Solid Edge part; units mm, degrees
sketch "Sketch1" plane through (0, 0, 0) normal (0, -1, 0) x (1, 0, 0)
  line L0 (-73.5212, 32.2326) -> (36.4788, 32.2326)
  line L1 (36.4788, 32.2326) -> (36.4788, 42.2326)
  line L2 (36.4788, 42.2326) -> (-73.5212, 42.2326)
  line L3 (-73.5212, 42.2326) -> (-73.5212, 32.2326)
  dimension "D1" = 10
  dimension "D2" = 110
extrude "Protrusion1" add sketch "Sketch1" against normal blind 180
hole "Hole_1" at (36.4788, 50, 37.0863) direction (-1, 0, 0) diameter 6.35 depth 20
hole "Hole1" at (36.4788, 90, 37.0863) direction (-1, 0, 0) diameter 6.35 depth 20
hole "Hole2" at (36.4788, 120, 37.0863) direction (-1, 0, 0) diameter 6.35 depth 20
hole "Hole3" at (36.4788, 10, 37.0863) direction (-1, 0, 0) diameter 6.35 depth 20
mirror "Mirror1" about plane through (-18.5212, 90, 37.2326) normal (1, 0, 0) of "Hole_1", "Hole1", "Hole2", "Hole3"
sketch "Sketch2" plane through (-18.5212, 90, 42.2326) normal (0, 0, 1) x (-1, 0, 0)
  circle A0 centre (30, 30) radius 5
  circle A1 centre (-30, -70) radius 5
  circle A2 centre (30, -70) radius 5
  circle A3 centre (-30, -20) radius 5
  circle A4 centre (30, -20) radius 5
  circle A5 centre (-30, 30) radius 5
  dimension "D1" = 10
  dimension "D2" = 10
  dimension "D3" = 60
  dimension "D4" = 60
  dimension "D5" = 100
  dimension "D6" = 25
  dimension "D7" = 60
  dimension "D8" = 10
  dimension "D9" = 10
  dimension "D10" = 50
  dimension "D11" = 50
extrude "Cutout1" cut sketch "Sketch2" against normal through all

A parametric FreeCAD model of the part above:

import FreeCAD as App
import Part
import Sketcher
from FreeCAD import Vector
Q = App.Units.Quantity


def add_polygon(sketch, points):
    """Adds a closed chain of lines whose ends are joined by coincident constraints."""
    first, n = sketch.GeometryCount, len(points)
    for a, b in zip(points, points[1:] + points[:1]):
        sketch.addGeometry(Part.LineSegment(App.Vector(*a, 0), App.Vector(*b, 0)), False)
    for i in range(n):
        sketch.addConstraint(Sketcher.Constraint("Coincident", first + i, 2, first + (i + 1) % n, 1))

doc = App.newDocument("Part")
body = doc.addObject("PartDesign::Body", "Body")

# Sketch on XZ plane
sketch1 = body.newObject("Sketcher::SketchObject", "Sketch")
sketch1.AttachmentSupport = (doc.getObject("XZ_Plane"), [""])
sketch1.MapMode = "FlatFace"
add_polygon(sketch1, [(-73.5212, 42.2326), (-73.5212, 32.2326), (36.4788, 32.2326), (36.4788, 42.2326)])  # lines 0-3
sketch1.addConstraint([
    Sketcher.Constraint("Vertical", 0),
    Sketcher.Constraint("Horizontal", 1),
    Sketcher.Constraint("Vertical", 2),
    Sketcher.Constraint("Horizontal", 3),
    Sketcher.Constraint("DistanceX", 1, 1, 1, 2, Q("110 mm")),
    Sketcher.Constraint("DistanceY", 0, 2, 0, 1, Q("10 mm")),
    Sketcher.Constraint("DistanceX", 0, 2, -1, 1, Q("73.5212 mm")),
    Sketcher.Constraint("DistanceY", -1, 1, 0, 2, Q("32.2326 mm")),
])
pad1 = body.newObject("PartDesign::Pad", "Pad")
pad1.Profile = sketch1
pad1.Length = 180
pad1.Reversed = True

# Sketch on YZ plane
sketch2 = body.newObject("Sketcher::SketchObject", "Sketch001")
sketch2.AttachmentSupport = (doc.getObject("YZ_Plane"), [""])
sketch2.MapMode = "FlatFace"
sketch2.AttachmentOffset = App.Placement(Vector(0, 0, 36.4788), App.Rotation())
sketch2.addGeometry(Part.Circle(Vector(50, 37.0863, 0), Vector(0, 0, 1), 3.175), False)
sketch2.addConstraint([
    Sketcher.Constraint("Diameter", 0, Q("6.35 mm")),
    Sketcher.Constraint("DistanceX", -1, 1, 0, 3, Q("50 mm")),
    Sketcher.Constraint("DistanceY", -1, 1, 0, 3, Q("37.0863 mm")),
])
doc.recompute()
hole = body.newObject("PartDesign::Hole", "Hole")
hole.Profile = sketch2
hole.ThreadType = "None"
hole.Diameter = 6.35
hole.DepthType = "Dimension"
hole.Depth = 20
hole.DrillPoint = "Flat"

# Sketch on YZ plane
sketch3 = body.newObject("Sketcher::SketchObject", "Sketch002")
sketch3.AttachmentSupport = (doc.getObject("YZ_Plane"), [""])
sketch3.MapMode = "FlatFace"
sketch3.AttachmentOffset = App.Placement(Vector(0, 0, 36.4788), App.Rotation())
sketch3.addGeometry(Part.Circle(Vector(90, 37.0863, 0), Vector(0, 0, 1), 3.175), False)
sketch3.addConstraint([
    Sketcher.Constraint("Diameter", 0, Q("6.35 mm")),
    Sketcher.Constraint("DistanceX", -1, 1, 0, 3, Q("90 mm")),
    Sketcher.Constraint("DistanceY", -1, 1, 0, 3, Q("37.0863 mm")),
])
doc.recompute()
hole2 = body.newObject("PartDesign::Hole", "Hole001")
hole2.Profile = sketch3
hole2.ThreadType = "None"
hole2.Diameter = 6.35
hole2.DepthType = "Dimension"
hole2.Depth = 20
hole2.DrillPoint = "Flat"

# Sketch on YZ plane
sketch4 = body.newObject("Sketcher::SketchObject", "Sketch003")
sketch4.AttachmentSupport = (doc.getObject("YZ_Plane"), [""])
sketch4.MapMode = "FlatFace"
sketch4.AttachmentOffset = App.Placement(Vector(0, 0, 36.4788), App.Rotation())
sketch4.addGeometry(Part.Circle(Vector(120, 37.0863, 0), Vector(0, 0, 1), 3.175), False)
sketch4.addConstraint([
    Sketcher.Constraint("Diameter", 0, Q("6.35 mm")),
    Sketcher.Constraint("DistanceX", -1, 1, 0, 3, Q("120 mm")),
    Sketcher.Constraint("DistanceY", -1, 1, 0, 3, Q("37.0863 mm")),
])
doc.recompute()
hole3 = body.newObject("PartDesign::Hole", "Hole002")
hole3.Profile = sketch4
hole3.ThreadType = "None"
hole3.Diameter = 6.35
hole3.DepthType = "Dimension"
hole3.Depth = 20
hole3.DrillPoint = "Flat"

# Sketch on YZ plane
sketch5 = body.newObject("Sketcher::SketchObject", "Sketch004")
sketch5.AttachmentSupport = (doc.getObject("YZ_Plane"), [""])
sketch5.MapMode = "FlatFace"
sketch5.AttachmentOffset = App.Placement(Vector(0, 0, 36.4788), App.Rotation())
sketch5.addGeometry(Part.Circle(Vector(10, 37.0863, 0), Vector(0, 0, 1), 3.175), False)
sketch5.addConstraint([
    Sketcher.Constraint("Diameter", 0, Q("6.35 mm")),
    Sketcher.Constraint("DistanceX", -1, 1, 0, 3, Q("10 mm")),
    Sketcher.Constraint("DistanceY", -1, 1, 0, 3, Q("37.0863 mm")),
])
doc.recompute()
hole4 = body.newObject("PartDesign::Hole", "Hole003")
hole4.Profile = sketch5
hole4.ThreadType = "None"
hole4.Diameter = 6.35
hole4.DepthType = "Dimension"
hole4.Depth = 20
hole4.DrillPoint = "Flat"
doc.recompute()

datumplane = body.newObject("PartDesign::Plane", "DatumPlane")
datumplane.AttachmentSupport = (doc.getObject("YZ_Plane"), [""])
datumplane.MapMode = "FlatFace"
datumplane.AttachmentOffset = App.Placement(Vector(0, 0, -18.5212), App.Rotation())
mirrored = body.newObject("PartDesign::Mirrored", "Mirrored")
mirrored.Originals = [hole, hole2, hole3, hole4]
mirrored.MirrorPlane = (datumplane, [""])
body.Tip = mirrored

# Sketch on XY plane
sketch6 = body.newObject("Sketcher::SketchObject", "Sketch005")
sketch6.AttachmentSupport = (doc.getObject("XY_Plane"), [""])
sketch6.MapMode = "FlatFace"
sketch6.AttachmentOffset = App.Placement(Vector(0, 0, 42.2326), App.Rotation())
sketch6.addGeometry([
    Part.Circle(Vector(-48.5212, 60, 0), Vector(0, 0, 1), 5),  # 0
    Part.Circle(Vector(11.4788, 160, 0), Vector(0, 0, 1), 5),  # 1
    Part.Circle(Vector(-48.5212, 160, 0), Vector(0, 0, 1), 5),  # 2
    Part.Circle(Vector(11.4788, 110, 0), Vector(0, 0, 1), 5),  # 3
    Part.Circle(Vector(-48.5212, 110, 0), Vector(0, 0, 1), 5),  # 4
    Part.Circle(Vector(11.4788, 60, 0), Vector(0, 0, 1), 5),  # 5
], False)
sketch6.addConstraint([
    Sketcher.Constraint("Equal", 0, 1),
    Sketcher.Constraint("Equal", 1, 2),
    Sketcher.Constraint("Equal", 2, 3),
    Sketcher.Constraint("Equal", 3, 4),
    Sketcher.Constraint("Equal", 4, 5),
    Sketcher.Constraint("Horizontal", 1, 3, 2, 3),
    Sketcher.Constraint("Horizontal", 3, 3, 4, 3),
    Sketcher.Constraint("Horizontal", 0, 3, 5, 3),
    Sketcher.Constraint("Vertical", 0, 3, 2, 3),
    Sketcher.Constraint("Vertical", 1, 3, 3, 3),
    Sketcher.Constraint("Vertical", 2, 3, 4, 3),
    Sketcher.Constraint("Vertical", 3, 3, 5, 3),
    Sketcher.Constraint("Diameter", 0, Q("10 mm")),
    Sketcher.Constraint("DistanceY", -1, 1, 0, 3, Q("60 mm")),
    Sketcher.Constraint("DistanceY", -1, 1, 1, 3, Q("160 mm")),
    Sketcher.Constraint("DistanceY", -1, 1, 3, 3, Q("110 mm")),
    Sketcher.Constraint("DistanceX", 0, 3, 1, 3, Q("60 mm")),
    Sketcher.Constraint("DistanceX", 0, 3, -1, 1, Q("48.5212 mm")),
])
pocket1 = body.newObject("PartDesign::Pocket", "Pocket")
pocket1.Profile = sketch6
pocket1.Type = "ThroughAll"

doc.recompute()
